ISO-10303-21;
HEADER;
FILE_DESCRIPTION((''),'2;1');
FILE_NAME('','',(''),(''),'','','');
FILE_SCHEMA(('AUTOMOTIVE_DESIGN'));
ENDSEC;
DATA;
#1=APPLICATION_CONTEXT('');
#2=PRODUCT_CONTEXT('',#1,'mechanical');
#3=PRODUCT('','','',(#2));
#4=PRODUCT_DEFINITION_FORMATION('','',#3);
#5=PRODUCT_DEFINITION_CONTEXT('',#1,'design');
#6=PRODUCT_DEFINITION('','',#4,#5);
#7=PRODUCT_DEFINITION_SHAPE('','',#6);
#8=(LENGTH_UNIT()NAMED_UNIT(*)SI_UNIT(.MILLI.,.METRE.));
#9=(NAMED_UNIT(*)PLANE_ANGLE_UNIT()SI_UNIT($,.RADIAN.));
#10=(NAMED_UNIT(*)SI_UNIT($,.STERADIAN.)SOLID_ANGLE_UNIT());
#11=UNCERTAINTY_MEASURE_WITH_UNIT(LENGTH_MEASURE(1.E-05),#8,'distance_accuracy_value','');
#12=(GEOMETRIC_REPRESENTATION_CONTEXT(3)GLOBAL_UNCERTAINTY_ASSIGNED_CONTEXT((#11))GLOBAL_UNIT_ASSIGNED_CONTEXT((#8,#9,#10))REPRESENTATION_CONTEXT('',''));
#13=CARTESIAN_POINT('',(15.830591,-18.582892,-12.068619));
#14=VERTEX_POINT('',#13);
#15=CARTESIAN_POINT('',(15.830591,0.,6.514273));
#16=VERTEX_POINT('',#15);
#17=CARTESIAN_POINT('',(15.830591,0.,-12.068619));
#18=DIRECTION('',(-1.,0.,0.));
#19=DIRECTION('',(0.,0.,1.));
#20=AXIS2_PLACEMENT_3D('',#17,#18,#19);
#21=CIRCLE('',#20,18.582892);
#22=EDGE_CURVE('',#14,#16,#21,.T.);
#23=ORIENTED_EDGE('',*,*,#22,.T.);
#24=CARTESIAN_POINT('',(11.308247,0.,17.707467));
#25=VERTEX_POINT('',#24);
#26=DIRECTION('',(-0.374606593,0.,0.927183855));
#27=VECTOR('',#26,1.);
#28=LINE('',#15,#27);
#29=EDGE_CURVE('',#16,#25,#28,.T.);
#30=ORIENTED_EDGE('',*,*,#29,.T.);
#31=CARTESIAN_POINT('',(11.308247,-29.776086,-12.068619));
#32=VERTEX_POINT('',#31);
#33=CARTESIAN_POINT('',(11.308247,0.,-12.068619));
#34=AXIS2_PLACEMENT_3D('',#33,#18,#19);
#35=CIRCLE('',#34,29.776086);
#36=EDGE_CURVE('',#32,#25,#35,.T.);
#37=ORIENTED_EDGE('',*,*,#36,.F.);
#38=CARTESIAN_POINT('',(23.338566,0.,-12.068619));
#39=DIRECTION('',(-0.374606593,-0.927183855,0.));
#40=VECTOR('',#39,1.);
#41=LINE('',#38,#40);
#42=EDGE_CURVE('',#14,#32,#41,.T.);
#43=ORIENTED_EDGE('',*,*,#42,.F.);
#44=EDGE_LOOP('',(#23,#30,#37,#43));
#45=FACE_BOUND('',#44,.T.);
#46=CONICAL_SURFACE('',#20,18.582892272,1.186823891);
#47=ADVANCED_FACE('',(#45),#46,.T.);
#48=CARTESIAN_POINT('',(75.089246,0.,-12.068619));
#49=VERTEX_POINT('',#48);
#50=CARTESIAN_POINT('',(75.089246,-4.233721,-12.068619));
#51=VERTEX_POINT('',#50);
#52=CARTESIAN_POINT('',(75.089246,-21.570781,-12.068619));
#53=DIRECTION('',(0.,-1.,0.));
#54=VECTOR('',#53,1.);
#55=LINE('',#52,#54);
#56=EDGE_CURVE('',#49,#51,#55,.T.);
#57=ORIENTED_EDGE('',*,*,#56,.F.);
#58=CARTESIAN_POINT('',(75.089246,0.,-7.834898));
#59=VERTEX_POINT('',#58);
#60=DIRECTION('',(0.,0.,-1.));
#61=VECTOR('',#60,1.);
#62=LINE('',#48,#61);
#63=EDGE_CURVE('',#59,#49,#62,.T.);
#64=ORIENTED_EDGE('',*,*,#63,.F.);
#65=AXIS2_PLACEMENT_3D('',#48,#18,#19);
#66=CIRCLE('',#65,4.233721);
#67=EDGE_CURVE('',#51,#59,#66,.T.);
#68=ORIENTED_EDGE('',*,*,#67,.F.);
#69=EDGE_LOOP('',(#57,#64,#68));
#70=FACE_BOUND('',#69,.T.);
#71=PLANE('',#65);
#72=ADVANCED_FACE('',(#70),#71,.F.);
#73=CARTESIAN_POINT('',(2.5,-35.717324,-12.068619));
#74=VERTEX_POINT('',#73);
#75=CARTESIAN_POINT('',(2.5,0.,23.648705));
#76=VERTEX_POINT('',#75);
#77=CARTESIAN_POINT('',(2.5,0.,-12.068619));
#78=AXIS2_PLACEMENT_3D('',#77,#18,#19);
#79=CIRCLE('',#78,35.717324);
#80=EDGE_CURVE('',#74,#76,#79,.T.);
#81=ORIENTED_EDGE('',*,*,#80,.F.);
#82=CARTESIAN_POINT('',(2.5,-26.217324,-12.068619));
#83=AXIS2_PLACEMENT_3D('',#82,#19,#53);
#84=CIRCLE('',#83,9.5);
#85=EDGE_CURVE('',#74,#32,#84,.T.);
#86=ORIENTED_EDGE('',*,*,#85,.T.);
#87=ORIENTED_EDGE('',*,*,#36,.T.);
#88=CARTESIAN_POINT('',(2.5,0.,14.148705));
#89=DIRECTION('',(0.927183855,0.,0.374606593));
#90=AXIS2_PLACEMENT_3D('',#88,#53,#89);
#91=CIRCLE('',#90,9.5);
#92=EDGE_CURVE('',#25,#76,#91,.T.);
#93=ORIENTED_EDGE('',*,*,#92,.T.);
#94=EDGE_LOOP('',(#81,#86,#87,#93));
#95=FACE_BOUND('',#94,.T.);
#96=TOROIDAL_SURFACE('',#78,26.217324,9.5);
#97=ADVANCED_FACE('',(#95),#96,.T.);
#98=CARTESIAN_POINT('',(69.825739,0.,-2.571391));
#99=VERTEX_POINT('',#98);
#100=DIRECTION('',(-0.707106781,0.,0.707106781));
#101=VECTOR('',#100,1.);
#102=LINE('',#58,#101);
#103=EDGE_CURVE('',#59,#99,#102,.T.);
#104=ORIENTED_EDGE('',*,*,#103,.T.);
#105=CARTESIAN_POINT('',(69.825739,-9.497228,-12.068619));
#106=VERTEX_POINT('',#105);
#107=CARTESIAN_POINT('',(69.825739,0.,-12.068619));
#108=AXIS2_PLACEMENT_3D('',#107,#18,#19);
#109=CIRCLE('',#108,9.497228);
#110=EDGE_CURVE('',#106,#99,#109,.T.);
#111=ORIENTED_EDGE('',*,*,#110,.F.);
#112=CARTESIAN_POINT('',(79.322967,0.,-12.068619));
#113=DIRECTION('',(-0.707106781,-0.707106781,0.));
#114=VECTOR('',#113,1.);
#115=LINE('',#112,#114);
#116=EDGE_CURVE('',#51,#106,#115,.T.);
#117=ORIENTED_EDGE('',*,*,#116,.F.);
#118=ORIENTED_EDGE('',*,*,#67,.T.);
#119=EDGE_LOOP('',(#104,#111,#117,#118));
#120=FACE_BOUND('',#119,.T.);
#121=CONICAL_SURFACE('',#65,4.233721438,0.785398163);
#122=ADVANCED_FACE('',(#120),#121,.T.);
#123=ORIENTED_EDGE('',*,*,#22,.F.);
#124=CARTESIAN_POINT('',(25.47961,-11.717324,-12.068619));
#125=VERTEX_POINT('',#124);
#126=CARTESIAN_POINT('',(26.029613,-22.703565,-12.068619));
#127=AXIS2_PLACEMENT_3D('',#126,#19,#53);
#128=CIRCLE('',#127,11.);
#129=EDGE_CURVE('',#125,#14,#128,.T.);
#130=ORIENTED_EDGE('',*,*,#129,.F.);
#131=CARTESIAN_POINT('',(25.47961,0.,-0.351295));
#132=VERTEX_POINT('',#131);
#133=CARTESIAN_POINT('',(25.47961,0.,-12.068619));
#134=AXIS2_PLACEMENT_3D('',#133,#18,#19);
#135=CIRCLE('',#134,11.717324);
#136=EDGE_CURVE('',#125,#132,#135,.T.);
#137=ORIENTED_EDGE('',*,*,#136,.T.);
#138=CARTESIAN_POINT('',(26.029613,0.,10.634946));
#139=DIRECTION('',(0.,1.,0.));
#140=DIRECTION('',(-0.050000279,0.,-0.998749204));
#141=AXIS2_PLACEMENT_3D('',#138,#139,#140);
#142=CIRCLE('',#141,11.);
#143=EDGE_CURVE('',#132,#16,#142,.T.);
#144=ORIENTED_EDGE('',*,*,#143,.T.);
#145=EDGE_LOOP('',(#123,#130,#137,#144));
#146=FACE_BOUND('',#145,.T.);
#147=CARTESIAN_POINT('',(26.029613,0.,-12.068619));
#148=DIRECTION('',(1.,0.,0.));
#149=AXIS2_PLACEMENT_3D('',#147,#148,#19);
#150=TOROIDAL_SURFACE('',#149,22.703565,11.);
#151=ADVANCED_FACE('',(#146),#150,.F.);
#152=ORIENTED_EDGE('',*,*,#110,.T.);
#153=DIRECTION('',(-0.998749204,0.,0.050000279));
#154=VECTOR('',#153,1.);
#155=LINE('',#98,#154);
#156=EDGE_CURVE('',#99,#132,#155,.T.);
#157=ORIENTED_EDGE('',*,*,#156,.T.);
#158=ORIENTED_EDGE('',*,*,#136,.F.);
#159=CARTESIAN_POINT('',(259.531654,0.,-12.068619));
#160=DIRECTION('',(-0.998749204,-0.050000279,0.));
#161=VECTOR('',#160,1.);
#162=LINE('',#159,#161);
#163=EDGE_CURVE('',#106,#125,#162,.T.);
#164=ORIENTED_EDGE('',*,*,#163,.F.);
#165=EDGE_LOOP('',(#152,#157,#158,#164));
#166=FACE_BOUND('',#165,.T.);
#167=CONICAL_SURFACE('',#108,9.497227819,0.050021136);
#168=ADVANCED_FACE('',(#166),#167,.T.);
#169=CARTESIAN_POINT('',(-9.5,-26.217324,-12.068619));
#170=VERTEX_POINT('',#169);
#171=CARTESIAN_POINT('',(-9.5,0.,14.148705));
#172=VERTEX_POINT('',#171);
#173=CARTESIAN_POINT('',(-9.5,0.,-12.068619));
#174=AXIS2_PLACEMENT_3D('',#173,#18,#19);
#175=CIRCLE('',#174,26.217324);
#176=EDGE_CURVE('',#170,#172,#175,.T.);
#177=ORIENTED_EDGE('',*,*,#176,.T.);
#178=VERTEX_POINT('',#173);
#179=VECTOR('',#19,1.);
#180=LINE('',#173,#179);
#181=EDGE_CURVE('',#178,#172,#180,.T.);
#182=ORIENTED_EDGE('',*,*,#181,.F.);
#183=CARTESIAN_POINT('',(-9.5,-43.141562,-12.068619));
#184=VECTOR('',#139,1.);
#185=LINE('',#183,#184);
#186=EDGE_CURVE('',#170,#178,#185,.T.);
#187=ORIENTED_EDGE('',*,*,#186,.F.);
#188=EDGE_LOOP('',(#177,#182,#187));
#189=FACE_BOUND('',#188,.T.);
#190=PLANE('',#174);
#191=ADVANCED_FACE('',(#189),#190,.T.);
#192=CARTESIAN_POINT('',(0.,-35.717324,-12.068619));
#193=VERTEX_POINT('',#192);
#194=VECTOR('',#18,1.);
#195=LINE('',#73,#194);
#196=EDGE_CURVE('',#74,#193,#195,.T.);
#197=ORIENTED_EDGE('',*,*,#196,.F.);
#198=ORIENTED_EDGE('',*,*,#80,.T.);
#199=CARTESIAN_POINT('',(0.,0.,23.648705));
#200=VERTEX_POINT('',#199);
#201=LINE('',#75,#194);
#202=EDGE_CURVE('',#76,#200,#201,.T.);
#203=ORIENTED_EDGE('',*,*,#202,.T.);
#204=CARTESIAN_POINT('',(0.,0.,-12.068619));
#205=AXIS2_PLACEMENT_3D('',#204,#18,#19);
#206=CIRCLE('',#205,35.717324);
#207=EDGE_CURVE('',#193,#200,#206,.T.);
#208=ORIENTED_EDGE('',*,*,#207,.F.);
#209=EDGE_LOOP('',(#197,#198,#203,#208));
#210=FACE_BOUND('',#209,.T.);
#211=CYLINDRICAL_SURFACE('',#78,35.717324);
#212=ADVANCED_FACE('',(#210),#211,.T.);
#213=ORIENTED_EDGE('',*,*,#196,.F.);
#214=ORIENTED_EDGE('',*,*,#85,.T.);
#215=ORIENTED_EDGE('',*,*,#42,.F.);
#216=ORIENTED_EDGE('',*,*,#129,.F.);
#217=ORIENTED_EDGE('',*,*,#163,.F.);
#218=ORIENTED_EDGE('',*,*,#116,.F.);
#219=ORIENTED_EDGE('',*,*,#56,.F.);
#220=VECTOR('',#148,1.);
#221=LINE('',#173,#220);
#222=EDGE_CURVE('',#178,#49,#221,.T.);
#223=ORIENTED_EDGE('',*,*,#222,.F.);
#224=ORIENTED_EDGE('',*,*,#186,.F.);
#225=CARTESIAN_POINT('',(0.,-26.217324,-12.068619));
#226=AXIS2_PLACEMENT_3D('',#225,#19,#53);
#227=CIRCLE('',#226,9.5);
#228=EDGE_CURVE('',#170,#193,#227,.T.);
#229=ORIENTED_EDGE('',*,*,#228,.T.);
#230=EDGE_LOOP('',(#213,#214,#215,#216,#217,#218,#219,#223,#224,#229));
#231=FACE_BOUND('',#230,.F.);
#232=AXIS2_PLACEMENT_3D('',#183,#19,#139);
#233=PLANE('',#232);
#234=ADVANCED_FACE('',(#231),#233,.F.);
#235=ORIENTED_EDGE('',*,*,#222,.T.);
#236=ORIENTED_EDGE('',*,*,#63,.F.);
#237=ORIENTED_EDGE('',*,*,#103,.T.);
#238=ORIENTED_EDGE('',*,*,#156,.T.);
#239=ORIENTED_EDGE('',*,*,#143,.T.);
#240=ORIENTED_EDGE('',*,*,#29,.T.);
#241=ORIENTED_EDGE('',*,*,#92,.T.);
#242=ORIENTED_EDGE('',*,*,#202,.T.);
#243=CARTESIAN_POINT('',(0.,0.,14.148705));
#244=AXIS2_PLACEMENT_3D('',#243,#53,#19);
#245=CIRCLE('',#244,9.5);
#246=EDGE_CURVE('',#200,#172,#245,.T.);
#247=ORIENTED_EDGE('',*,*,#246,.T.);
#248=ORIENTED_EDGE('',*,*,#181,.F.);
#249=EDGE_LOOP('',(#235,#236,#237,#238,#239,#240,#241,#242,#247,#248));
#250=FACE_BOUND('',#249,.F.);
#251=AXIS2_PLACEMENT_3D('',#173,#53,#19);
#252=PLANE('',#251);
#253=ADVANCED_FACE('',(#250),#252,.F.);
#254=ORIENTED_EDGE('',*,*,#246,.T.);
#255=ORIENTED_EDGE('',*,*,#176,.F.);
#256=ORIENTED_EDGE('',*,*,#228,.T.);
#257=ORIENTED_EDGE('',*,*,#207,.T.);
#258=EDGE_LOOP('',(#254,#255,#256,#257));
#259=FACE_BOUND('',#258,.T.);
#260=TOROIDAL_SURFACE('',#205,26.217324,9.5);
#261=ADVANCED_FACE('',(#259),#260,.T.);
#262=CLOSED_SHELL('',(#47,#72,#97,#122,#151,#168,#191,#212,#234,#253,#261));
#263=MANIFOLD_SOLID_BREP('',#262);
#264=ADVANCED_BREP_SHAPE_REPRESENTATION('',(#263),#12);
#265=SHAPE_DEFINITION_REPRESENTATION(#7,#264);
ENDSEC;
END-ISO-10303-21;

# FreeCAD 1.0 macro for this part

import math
import FreeCAD as App
import Part
import Sketcher
from FreeCAD import Vector


def add_polygon(sketch, points):
    """Adds a closed chain of lines whose ends are joined by coincident constraints."""
    first, n = sketch.GeometryCount, len(points)
    for a, b in zip(points, points[1:] + points[:1]):
        sketch.addGeometry(Part.LineSegment(App.Vector(*a, 0), App.Vector(*b, 0)), False)
    for i in range(n):
        sketch.addConstraint(Sketcher.Constraint("Coincident", first + i, 2, first + (i + 1) % n, 1))

doc = App.newDocument("Part")
body = doc.addObject("PartDesign::Body", "Body")

# Sketch on XZ plane
sketch1 = body.newObject("Sketcher::SketchObject", "Sketch")
sketch1.AttachmentSupport = (doc.getObject("XZ_Plane"), [""])
sketch1.MapMode = "FlatFace"
sketch1.addGeometry([
    Part.LineSegment(Vector(-9.5, 14.148705, 0), Vector(-9.5, -12.068619, 0)),  # 0
    Part.LineSegment(Vector(-9.5, -12.068619, 0), Vector(75.089246, -12.068619, 0)),  # 1
    Part.LineSegment(Vector(75.089246, -12.068619, 0), Vector(75.089246, -7.834898, 0)),  # 2
    Part.LineSegment(Vector(75.089246, -7.834898, 0), Vector(69.825739, -2.571391, 0)),  # 3
    Part.LineSegment(Vector(69.825739, -2.571391, 0), Vector(25.47961, -0.351295, 0)),  # 4
    Part.ArcOfCircle(Part.Circle(Vector(26.029613, 10.634946, 0), Vector(0, 0, 1), 11), math.radians(-158), math.radians(-92.866)),  # 5
    Part.LineSegment(Vector(15.830591, 6.514273, 0), Vector(11.308247, 17.707467, 0)),  # 6
    Part.ArcOfCircle(Part.Circle(Vector(2.5, 14.148705, 0), Vector(0, 0, 1), 9.5), math.radians(22), math.radians(90)),  # 7
    Part.LineSegment(Vector(2.5, 23.648705, 0), Vector(0, 23.648705, 0)),  # 8
    Part.ArcOfCircle(Part.Circle(Vector(0, 14.148705, 0), Vector(0, 0, 1), 9.5), math.radians(90), math.radians(180)),  # 9
], False)
sketch1.addGeometry(Part.LineSegment(Vector(75.089246, -12.068619, 0), Vector(-9.5, -12.068619, 0)), True)  # axis
sketch1.addConstraint([
    Sketcher.Constraint("Coincident", 0, 2, 1, 1),
    Sketcher.Constraint("Coincident", 1, 2, 2, 1),
    Sketcher.Constraint("Coincident", 2, 2, 3, 1),
    Sketcher.Constraint("Coincident", 3, 2, 4, 1),
    Sketcher.Constraint("Coincident", 4, 2, 5, 2),
    Sketcher.Constraint("Coincident", 5, 1, 6, 1),
    Sketcher.Constraint("Coincident", 6, 2, 7, 1),
    Sketcher.Constraint("Coincident", 7, 2, 8, 1),
    Sketcher.Constraint("Coincident", 8, 2, 9, 1),
    Sketcher.Constraint("Coincident", 9, 2, 0, 1),
    Sketcher.Constraint("Vertical", 0),
    Sketcher.Constraint("Horizontal", 1),
    Sketcher.Constraint("Vertical", 2),
    Sketcher.Constraint("Horizontal", 8),
    Sketcher.Constraint("Horizontal", 10),
    Sketcher.Constraint("Coincident", 10, 1, 1, 2),
    Sketcher.Constraint("PointOnObject", 9, 3, -2),
    Sketcher.Constraint("PointOnObject", 8, 2, -2),
    Sketcher.Constraint("Radius", 5, 11.0),
    Sketcher.Constraint("Radius", 7, 9.5),
    Sketcher.Constraint("Radius", 9, 9.5),
    Sketcher.Constraint("DistanceX", 8, 2, 8, 1, 2.5),
    Sketcher.Constraint("DistanceX", 0, 2, 7, 3, 12.0),
    Sketcher.Constraint("DistanceX", 10, 2, 7, 3, 12.0),
    Sketcher.Constraint("DistanceY", 4, 2, 7, 3, 14.5),
    Sketcher.Constraint("DistanceY", 9, 2, 8, 2, 9.5),
    Sketcher.Constraint("DistanceY", 2, 1, 2, 2, 4.233721),
    Sketcher.Constraint("Distance", 6, 12.072249),
    Sketcher.Constraint("DistanceX", 1, 1, 1, 2, 84.589246),
    Sketcher.Constraint("DistanceY", 0, 2, 0, 1, 26.217324),
    Sketcher.Constraint("DistanceY", 0, 2, -1, 1, 12.068619),
    Sketcher.Constraint("DistanceX", -1, 1, 3, 2, 69.825739),
    Sketcher.Constraint("DistanceY", 3, 2, -1, 1, 2.571391),
    Sketcher.Constraint("DistanceX", -1, 1, 4, 2, 25.47961),
    Sketcher.Constraint("DistanceX", -1, 1, 5, 1, 15.830591),
    Sketcher.Constraint("DistanceY", 5, 3, 7, 3, 3.513759),
])
revolution = body.newObject("PartDesign::Revolution", "Revolution")
revolution.Profile = sketch1
revolution.ReferenceAxis = (sketch1, ["Axis0"])
revolution.Angle = 360

# Sketch on YZ plane
sketch2 = body.newObject("Sketcher::SketchObject", "Sketch001")
sketch2.AttachmentSupport = (doc.getObject("YZ_Plane"), [""])
sketch2.MapMode = "FlatFace"
sketch2.AttachmentOffset = App.Placement(Vector(0, 0, -9.5), App.Rotation())
add_polygon(sketch2, [(-43, -12), (0, -12), (0, 26), (45, 26), (45, -49), (-43, -49)])  # lines 0-5
sketch2.addConstraint([
    Sketcher.Constraint("Horizontal", 0),
    Sketcher.Constraint("Vertical", 1),
    Sketcher.Constraint("Horizontal", 2),
    Sketcher.Constraint("Vertical", 3),
    Sketcher.Constraint("Horizontal", 4),
    Sketcher.Constraint("Vertical", 5),
    Sketcher.Constraint("PointOnObject", 0, 2, -2),
    Sketcher.Constraint("DistanceX", 2, 1, 2, 2, 45.264158),
    Sketcher.Constraint("DistanceX", 4, 2, 4, 1, 88.405721),
    Sketcher.Constraint("DistanceY", 1, 1, 1, 2, 37.92139),
    Sketcher.Constraint("DistanceY", 3, 2, 3, 1, 75.097332),
    Sketcher.Constraint("DistanceY", 0, 2, -1, 1, 12.068619),
])
pocket1 = body.newObject("PartDesign::Pocket", "Pocket")
pocket1.Profile = sketch2
pocket1.Length = 100
pocket1.Reversed = True

doc.recompute()
